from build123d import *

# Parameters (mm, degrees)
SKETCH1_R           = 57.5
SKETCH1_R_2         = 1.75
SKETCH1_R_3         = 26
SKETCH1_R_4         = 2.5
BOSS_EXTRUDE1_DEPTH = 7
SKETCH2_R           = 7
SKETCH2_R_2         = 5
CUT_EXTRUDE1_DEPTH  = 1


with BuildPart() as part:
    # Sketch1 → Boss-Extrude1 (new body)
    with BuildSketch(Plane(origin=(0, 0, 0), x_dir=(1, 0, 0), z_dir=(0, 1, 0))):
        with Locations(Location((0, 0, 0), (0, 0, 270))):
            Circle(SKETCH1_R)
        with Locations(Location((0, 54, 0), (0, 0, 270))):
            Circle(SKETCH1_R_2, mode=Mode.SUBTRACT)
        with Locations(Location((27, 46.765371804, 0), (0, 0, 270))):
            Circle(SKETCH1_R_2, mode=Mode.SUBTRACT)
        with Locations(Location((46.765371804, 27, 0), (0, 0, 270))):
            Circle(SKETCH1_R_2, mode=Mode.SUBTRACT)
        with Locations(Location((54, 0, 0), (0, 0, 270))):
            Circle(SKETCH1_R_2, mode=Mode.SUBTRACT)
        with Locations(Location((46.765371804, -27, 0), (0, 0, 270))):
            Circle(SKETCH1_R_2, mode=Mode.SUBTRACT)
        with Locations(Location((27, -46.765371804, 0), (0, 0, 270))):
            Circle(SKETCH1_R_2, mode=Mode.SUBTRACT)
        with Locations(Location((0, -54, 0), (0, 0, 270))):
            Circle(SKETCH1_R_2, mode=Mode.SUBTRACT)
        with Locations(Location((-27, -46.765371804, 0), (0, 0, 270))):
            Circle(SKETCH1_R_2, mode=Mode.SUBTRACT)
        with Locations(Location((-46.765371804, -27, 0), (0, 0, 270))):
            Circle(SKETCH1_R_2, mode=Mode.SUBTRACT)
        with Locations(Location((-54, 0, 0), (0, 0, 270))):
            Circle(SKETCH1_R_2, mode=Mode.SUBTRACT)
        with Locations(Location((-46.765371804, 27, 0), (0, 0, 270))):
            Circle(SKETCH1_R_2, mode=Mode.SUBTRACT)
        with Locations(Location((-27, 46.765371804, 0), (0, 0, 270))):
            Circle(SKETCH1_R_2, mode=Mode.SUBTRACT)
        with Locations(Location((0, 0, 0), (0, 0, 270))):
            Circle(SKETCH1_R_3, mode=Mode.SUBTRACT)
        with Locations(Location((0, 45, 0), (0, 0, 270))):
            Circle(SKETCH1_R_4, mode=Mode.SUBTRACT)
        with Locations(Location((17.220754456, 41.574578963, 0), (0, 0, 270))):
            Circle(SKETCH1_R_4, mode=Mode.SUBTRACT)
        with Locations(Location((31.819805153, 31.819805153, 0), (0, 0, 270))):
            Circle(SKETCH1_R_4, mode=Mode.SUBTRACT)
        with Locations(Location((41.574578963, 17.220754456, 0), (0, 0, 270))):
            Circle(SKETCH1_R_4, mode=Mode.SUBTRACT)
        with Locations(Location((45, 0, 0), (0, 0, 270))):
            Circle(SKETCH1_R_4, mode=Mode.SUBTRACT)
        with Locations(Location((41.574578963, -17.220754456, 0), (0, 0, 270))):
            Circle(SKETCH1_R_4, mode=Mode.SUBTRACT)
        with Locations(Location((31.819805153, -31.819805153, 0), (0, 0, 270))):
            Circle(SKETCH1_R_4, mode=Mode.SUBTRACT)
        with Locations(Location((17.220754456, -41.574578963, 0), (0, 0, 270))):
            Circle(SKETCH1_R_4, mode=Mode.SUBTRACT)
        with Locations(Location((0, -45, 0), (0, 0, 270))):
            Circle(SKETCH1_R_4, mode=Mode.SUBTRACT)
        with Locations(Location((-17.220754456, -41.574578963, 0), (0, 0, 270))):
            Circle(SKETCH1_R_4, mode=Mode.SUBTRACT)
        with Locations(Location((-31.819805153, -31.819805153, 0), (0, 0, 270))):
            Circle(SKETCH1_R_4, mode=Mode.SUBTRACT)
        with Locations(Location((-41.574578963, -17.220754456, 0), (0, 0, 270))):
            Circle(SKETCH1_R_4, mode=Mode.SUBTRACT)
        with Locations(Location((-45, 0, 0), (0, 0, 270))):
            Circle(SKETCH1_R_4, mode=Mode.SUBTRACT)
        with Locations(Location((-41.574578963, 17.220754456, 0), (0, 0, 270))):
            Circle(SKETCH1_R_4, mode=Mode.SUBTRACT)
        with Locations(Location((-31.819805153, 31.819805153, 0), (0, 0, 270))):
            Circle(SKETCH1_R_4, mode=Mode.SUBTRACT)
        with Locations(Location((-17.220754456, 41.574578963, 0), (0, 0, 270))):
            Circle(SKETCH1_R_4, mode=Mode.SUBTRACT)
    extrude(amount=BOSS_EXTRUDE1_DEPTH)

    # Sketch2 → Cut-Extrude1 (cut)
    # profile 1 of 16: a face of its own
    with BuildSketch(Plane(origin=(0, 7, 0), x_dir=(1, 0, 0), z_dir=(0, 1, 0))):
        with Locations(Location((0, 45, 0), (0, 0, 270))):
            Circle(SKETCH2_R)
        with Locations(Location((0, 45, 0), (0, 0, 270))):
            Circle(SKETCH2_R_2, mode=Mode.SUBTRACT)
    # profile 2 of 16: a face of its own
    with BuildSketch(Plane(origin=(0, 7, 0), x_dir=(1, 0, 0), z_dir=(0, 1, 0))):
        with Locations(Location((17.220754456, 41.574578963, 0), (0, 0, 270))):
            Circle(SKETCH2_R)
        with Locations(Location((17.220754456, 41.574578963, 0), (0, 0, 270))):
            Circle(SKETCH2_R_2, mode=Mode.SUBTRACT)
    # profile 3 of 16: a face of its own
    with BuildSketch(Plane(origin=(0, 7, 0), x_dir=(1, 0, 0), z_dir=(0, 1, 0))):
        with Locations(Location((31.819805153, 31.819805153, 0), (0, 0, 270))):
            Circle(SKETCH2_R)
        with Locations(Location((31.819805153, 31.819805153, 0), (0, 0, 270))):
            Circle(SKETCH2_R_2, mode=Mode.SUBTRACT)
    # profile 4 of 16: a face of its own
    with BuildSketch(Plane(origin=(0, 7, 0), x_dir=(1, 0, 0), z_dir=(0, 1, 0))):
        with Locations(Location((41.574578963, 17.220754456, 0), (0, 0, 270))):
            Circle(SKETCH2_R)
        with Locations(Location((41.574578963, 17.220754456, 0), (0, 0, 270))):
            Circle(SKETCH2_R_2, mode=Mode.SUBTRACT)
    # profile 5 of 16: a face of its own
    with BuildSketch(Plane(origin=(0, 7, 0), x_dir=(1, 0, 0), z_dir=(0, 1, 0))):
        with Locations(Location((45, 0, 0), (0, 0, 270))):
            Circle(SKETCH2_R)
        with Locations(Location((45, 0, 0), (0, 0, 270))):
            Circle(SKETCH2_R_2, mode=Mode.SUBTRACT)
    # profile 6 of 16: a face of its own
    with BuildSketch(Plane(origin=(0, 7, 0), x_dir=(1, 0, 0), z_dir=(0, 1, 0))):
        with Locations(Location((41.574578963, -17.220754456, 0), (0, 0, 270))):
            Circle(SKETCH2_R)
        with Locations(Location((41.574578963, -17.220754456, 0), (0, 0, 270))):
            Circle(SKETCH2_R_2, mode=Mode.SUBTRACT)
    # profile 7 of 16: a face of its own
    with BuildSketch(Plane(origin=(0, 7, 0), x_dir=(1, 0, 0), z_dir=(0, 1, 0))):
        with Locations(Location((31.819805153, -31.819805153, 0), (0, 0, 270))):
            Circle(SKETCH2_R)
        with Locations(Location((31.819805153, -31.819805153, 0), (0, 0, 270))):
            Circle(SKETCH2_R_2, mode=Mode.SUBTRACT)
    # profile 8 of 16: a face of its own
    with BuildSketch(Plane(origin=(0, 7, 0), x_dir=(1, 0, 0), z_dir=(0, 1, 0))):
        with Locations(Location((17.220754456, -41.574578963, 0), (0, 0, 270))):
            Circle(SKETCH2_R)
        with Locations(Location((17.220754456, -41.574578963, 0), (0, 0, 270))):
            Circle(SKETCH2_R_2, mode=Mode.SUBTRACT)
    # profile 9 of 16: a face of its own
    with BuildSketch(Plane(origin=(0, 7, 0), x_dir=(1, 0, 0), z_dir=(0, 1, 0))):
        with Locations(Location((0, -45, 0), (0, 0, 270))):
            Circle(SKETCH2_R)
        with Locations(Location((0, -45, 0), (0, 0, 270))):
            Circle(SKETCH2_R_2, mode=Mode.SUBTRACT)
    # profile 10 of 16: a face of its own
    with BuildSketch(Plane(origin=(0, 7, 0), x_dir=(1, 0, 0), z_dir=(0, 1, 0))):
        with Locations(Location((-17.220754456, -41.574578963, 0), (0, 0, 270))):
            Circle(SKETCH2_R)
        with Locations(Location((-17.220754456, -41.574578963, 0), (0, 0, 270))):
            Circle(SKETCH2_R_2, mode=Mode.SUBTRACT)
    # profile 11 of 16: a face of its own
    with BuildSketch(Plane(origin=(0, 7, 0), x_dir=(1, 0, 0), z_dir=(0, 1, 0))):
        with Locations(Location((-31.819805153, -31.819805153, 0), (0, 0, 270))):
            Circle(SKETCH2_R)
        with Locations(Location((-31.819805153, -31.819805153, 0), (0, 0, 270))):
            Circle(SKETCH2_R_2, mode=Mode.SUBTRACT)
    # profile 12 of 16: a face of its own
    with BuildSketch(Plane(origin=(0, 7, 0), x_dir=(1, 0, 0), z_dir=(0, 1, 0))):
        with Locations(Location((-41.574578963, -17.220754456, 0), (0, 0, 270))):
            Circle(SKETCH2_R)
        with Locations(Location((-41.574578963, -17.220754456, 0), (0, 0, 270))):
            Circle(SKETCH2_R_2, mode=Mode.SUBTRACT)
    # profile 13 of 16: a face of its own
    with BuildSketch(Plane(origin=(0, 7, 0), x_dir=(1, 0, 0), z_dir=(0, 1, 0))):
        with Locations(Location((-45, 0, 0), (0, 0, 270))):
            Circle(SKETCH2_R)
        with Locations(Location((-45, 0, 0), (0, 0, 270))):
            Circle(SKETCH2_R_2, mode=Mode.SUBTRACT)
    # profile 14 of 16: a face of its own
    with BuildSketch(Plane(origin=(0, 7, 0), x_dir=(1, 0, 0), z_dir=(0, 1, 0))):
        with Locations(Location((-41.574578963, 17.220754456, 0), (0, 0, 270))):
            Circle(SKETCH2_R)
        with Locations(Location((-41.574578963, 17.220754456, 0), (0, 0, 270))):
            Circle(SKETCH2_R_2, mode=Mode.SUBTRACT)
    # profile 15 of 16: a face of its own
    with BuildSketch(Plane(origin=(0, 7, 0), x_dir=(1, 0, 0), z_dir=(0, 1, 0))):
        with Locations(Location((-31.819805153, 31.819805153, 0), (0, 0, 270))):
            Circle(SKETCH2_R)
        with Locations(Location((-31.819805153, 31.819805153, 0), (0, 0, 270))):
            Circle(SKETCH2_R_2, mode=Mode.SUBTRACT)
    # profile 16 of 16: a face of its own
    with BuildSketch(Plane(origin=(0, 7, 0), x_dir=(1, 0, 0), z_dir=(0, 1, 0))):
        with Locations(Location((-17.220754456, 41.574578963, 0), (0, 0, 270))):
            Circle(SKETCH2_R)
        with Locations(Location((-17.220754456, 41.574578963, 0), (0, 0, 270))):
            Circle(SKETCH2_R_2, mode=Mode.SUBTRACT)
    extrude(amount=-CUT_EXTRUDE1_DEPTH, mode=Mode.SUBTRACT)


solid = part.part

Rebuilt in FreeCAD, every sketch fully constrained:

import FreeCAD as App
import Part
import Sketcher
from FreeCAD import Vector
Q = App.Units.Quantity

doc = App.newDocument("Part")
body = doc.addObject("PartDesign::Body", "Body")

# Sketch on XZ plane
sketch1 = body.newObject("Sketcher::SketchObject", "Sketch")
sketch1.AttachmentSupport = (doc.getObject("XZ_Plane"), [""])
sketch1.MapMode = "FlatFace"
sketch1.addGeometry([
    Part.Circle(Vector(0, 0, 0), Vector(0, 0, 1), 57.5),  # 0
    Part.Circle(Vector(-31.8, -31.8, 0), Vector(0, 0, 1), 2.5),  # 1
    Part.Circle(Vector(-46.8, -27, 0), Vector(0, 0, 1), 1.8),  # 2
    Part.Circle(Vector(-41.6, -17.2, 0), Vector(0, 0, 1), 2.5),  # 3
    Part.Circle(Vector(-27, -46.8, 0), Vector(0, 0, 1), 1.8),  # 4
    Part.Circle(Vector(-17.2, -41.6, 0), Vector(0, 0, 1), 2.5),  # 5
    Part.Circle(Vector(0, -54, 0), Vector(0, 0, 1), 1.8),  # 6
    Part.Circle(Vector(0, -45, 0), Vector(0, 0, 1), 2.5),  # 7
    Part.Circle(Vector(-54, 0, 0), Vector(0, 0, 1), 1.8),  # 8
    Part.Circle(Vector(-45, 0, 0), Vector(0, 0, 1), 2.5),  # 9
    Part.Circle(Vector(-46.8, 27, 0), Vector(0, 0, 1), 1.8),  # 10
    Part.Circle(Vector(-41.6, 17.2, 0), Vector(0, 0, 1), 2.5),  # 11
    Part.Circle(Vector(-31.8, 31.8, 0), Vector(0, 0, 1), 2.5),  # 12
    Part.Circle(Vector(-17.2, 41.6, 0), Vector(0, 0, 1), 2.5),  # 13
    Part.Circle(Vector(-27, 46.8, 0), Vector(0, 0, 1), 1.8),  # 14
    Part.Circle(Vector(27, -46.8, 0), Vector(0, 0, 1), 1.8),  # 15
    Part.Circle(Vector(17.2, -41.6, 0), Vector(0, 0, 1), 2.5),  # 16
    Part.Circle(Vector(31.8, -31.8, 0), Vector(0, 0, 1), 2.5),  # 17
    Part.Circle(Vector(41.6, -17.2, 0), Vector(0, 0, 1), 2.5),  # 18
    Part.Circle(Vector(46.8, -27, 0), Vector(0, 0, 1), 1.8),  # 19
    Part.Circle(Vector(45, 0, 0), Vector(0, 0, 1), 2.5),  # 20
    Part.Circle(Vector(54, 0, 0), Vector(0, 0, 1), 1.8),  # 21
    Part.Circle(Vector(0, 0, 0), Vector(0, 0, 1), 26),  # 22
    Part.Circle(Vector(0, 45, 0), Vector(0, 0, 1), 2.5),  # 23
    Part.Circle(Vector(0, 54, 0), Vector(0, 0, 1), 1.8),  # 24
    Part.Circle(Vector(17.2, 41.6, 0), Vector(0, 0, 1), 2.5),  # 25
    Part.Circle(Vector(27, 46.8, 0), Vector(0, 0, 1), 1.8),  # 26
    Part.Circle(Vector(41.6, 17.2, 0), Vector(0, 0, 1), 2.5),  # 27
    Part.Circle(Vector(46.8, 27, 0), Vector(0, 0, 1), 1.8),  # 28
    Part.Circle(Vector(31.8, 31.8, 0), Vector(0, 0, 1), 2.5),  # 29
], False)
sketch1.addConstraint([
    Sketcher.Constraint("Coincident", 0, 3, -1, 1),
    Sketcher.Constraint("Coincident", 22, 3, -1, 1),
    Sketcher.Constraint("Equal", 1, 3),
    Sketcher.Constraint("Equal", 2, 4),
    Sketcher.Constraint("Equal", 3, 5),
    Sketcher.Constraint("Equal", 4, 6),
    Sketcher.Constraint("Equal", 5, 7),
    Sketcher.Constraint("Equal", 6, 8),
    Sketcher.Constraint("Equal", 7, 9),
    Sketcher.Constraint("Equal", 8, 10),
    Sketcher.Constraint("Equal", 9, 11),
    Sketcher.Constraint("Equal", 11, 12),
    Sketcher.Constraint("Equal", 12, 13),
    Sketcher.Constraint("Equal", 10, 14),
    Sketcher.Constraint("Equal", 14, 15),
    Sketcher.Constraint("Equal", 13, 16),
    Sketcher.Constraint("Equal", 16, 17),
    Sketcher.Constraint("Equal", 17, 18),
    Sketcher.Constraint("Equal", 15, 19),
    Sketcher.Constraint("Equal", 18, 20),
    Sketcher.Constraint("Equal", 19, 21),
    Sketcher.Constraint("Equal", 20, 23),
    Sketcher.Constraint("Equal", 21, 24),
    Sketcher.Constraint("Equal", 23, 25),
    Sketcher.Constraint("Equal", 24, 26),
    Sketcher.Constraint("Equal", 25, 27),
    Sketcher.Constraint("Equal", 26, 28),
    Sketcher.Constraint("Equal", 27, 29),
    Sketcher.Constraint("Symmetric", 14, 3, 15, 3, -1, 1),
    Sketcher.Constraint("Symmetric", 13, 3, 16, 3, -1, 1),
    Sketcher.Constraint("Symmetric", 12, 3, 17, 3, -1, 1),
    Sketcher.Constraint("Symmetric", 11, 3, 18, 3, -1, 1),
    Sketcher.Constraint("Symmetric", 10, 3, 19, 3, -1, 1),
    Sketcher.Constraint("Symmetric", 9, 3, 20, 3, -1, 1),
    Sketcher.Constraint("Symmetric", 8, 3, 21, 3, -1, 1),
    Sketcher.Constraint("Symmetric", 7, 3, 23, 3, -1, 1),
    Sketcher.Constraint("Symmetric", 6, 3, 24, 3, -1, 1),
    Sketcher.Constraint("Symmetric", 5, 3, 25, 3, -1, 1),
    Sketcher.Constraint("Symmetric", 4, 3, 26, 3, -1, 1),
    Sketcher.Constraint("Symmetric", 3, 3, 27, 3, -1, 1),
    Sketcher.Constraint("Symmetric", 2, 3, 28, 3, -1, 1),
    Sketcher.Constraint("Symmetric", 1, 3, 29, 3, -1, 1),
    Sketcher.Constraint("Symmetric", 4, 3, 15, 3, -2),
    Sketcher.Constraint("Symmetric", 5, 3, 16, 3, -2),
    Sketcher.Constraint("Symmetric", 1, 3, 17, 3, -2),
    Sketcher.Constraint("Symmetric", 3, 3, 18, 3, -2),
    Sketcher.Constraint("Symmetric", 2, 3, 19, 3, -2),
    Sketcher.Constraint("PointOnObject", 6, 3, -2),
    Sketcher.Constraint("PointOnObject", 7, 3, -2),
    Sketcher.Constraint("PointOnObject", 8, 3, -1),
    Sketcher.Constraint("PointOnObject", 9, 3, -1),
    Sketcher.Constraint("Diameter", 0, Q("115 mm")),
    Sketcher.Constraint("Diameter", 1, Q("5 mm")),
    Sketcher.Constraint("Diameter", 22, Q("52 mm")),
    Sketcher.Constraint("Diameter", 2, Q("3.5 mm")),
    Sketcher.Constraint("DistanceY", 2, 3, -1, 1, Q("27 mm")),
    Sketcher.Constraint("DistanceX", 4, 3, -1, 1, Q("27 mm")),
    Sketcher.Constraint("DistanceY", 6, 3, -1, 1, Q("54 mm")),
    Sketcher.Constraint("DistanceY", 7, 3, -1, 1, Q("45 mm")),
    Sketcher.Constraint("DistanceX", 8, 3, -1, 1, Q("54 mm")),
    Sketcher.Constraint("DistanceX", 9, 3, -1, 1, Q("45 mm")),
    Sketcher.Constraint("DistanceX", 2, 3, -1, 1, Q("46.765372 mm")),
    Sketcher.Constraint("DistanceX", 3, 3, -1, 1, Q("41.574579 mm")),
    Sketcher.Constraint("DistanceY", 4, 3, -1, 1, Q("46.765372 mm")),
    Sketcher.Constraint("DistanceY", 5, 3, -1, 1, Q("41.574579 mm")),
    Sketcher.Constraint("DistanceY", 1, 3, 3, 3, Q("14.599051 mm")),
    Sketcher.Constraint("DistanceX", 1, 3, 5, 3, Q("14.599051 mm")),
    Sketcher.Constraint("DistanceY", 3, 3, 11, 3, Q("34.441509 mm")),
    Sketcher.Constraint("DistanceX", 5, 3, 16, 3, Q("34.441509 mm")),
])
pad1 = body.newObject("PartDesign::Pad", "Pad")
pad1.Profile = sketch1
pad1.Length = 7
pad1.Reversed = True

# Sketch on XZ plane
sketch2 = body.newObject("Sketcher::SketchObject", "Sketch001")
sketch2.AttachmentSupport = (doc.getObject("XZ_Plane"), [""])
sketch2.MapMode = "FlatFace"
sketch2.AttachmentOffset = App.Placement(Vector(0, 0, -7), App.Rotation())
sketch2.addGeometry([
    Part.Circle(Vector(0, -45, 0), Vector(0, 0, 1), 7),  # 0
    Part.Circle(Vector(0, -45, 0), Vector(0, 0, 1), 5),  # 1
    Part.Circle(Vector(17, -42, 0), Vector(0, 0, 1), 7),  # 2
    Part.Circle(Vector(17, -42, 0), Vector(0, 0, 1), 5),  # 3
    Part.Circle(Vector(32, -32, 0), Vector(0, 0, 1), 7),  # 4
    Part.Circle(Vector(32, -32, 0), Vector(0, 0, 1), 5),  # 5
    Part.Circle(Vector(42, -17, 0), Vector(0, 0, 1), 7),  # 6
    Part.Circle(Vector(42, -17, 0), Vector(0, 0, 1), 5),  # 7
    Part.Circle(Vector(45, 0, 0), Vector(0, 0, 1), 7),  # 8
    Part.Circle(Vector(45, 0, 0), Vector(0, 0, 1), 5),  # 9
    Part.Circle(Vector(42, 17, 0), Vector(0, 0, 1), 7),  # 10
    Part.Circle(Vector(42, 17, 0), Vector(0, 0, 1), 5),  # 11
    Part.Circle(Vector(32, 32, 0), Vector(0, 0, 1), 7),  # 12
    Part.Circle(Vector(32, 32, 0), Vector(0, 0, 1), 5),  # 13
    Part.Circle(Vector(17, 42, 0), Vector(0, 0, 1), 7),  # 14
    Part.Circle(Vector(17, 42, 0), Vector(0, 0, 1), 5),  # 15
    Part.Circle(Vector(0, 45, 0), Vector(0, 0, 1), 7),  # 16
    Part.Circle(Vector(0, 45, 0), Vector(0, 0, 1), 5),  # 17
    Part.Circle(Vector(-17, 42, 0), Vector(0, 0, 1), 7),  # 18
    Part.Circle(Vector(-17, 42, 0), Vector(0, 0, 1), 5),  # 19
    Part.Circle(Vector(-32, 32, 0), Vector(0, 0, 1), 7),  # 20
    Part.Circle(Vector(-32, 32, 0), Vector(0, 0, 1), 5),  # 21
    Part.Circle(Vector(-42, 17, 0), Vector(0, 0, 1), 7),  # 22
    Part.Circle(Vector(-42, 17, 0), Vector(0, 0, 1), 5),  # 23
    Part.Circle(Vector(-45, 0, 0), Vector(0, 0, 1), 7),  # 24
    Part.Circle(Vector(-45, 0, 0), Vector(0, 0, 1), 5),  # 25
    Part.Circle(Vector(-42, -17, 0), Vector(0, 0, 1), 7),  # 26
    Part.Circle(Vector(-42, -17, 0), Vector(0, 0, 1), 5),  # 27
    Part.Circle(Vector(-32, -32, 0), Vector(0, 0, 1), 7),  # 28
    Part.Circle(Vector(-32, -32, 0), Vector(0, 0, 1), 5),  # 29
    Part.Circle(Vector(-17, -42, 0), Vector(0, 0, 1), 7),  # 30
    Part.Circle(Vector(-17, -42, 0), Vector(0, 0, 1), 5),  # 31
], False)
sketch2.addConstraint([
    Sketcher.Constraint("Coincident", 1, 3, 0, 3),
    Sketcher.Constraint("Coincident", 3, 3, 2, 3),
    Sketcher.Constraint("Coincident", 5, 3, 4, 3),
    Sketcher.Constraint("Coincident", 7, 3, 6, 3),
    Sketcher.Constraint("Coincident", 9, 3, 8, 3),
    Sketcher.Constraint("Coincident", 11, 3, 10, 3),
    Sketcher.Constraint("Coincident", 13, 3, 12, 3),
    Sketcher.Constraint("Coincident", 15, 3, 14, 3),
    Sketcher.Constraint("Coincident", 17, 3, 16, 3),
    Sketcher.Constraint("Coincident", 19, 3, 18, 3),
    Sketcher.Constraint("Coincident", 21, 3, 20, 3),
    Sketcher.Constraint("Coincident", 23, 3, 22, 3),
    Sketcher.Constraint("Coincident", 25, 3, 24, 3),
    Sketcher.Constraint("Coincident", 27, 3, 26, 3),
    Sketcher.Constraint("Coincident", 29, 3, 28, 3),
    Sketcher.Constraint("Coincident", 31, 3, 30, 3),
    Sketcher.Constraint("Equal", 0, 2),
    Sketcher.Constraint("Equal", 1, 3),
    Sketcher.Constraint("Equal", 2, 4),
    Sketcher.Constraint("Equal", 3, 5),
    Sketcher.Constraint("Equal", 4, 6),
    Sketcher.Constraint("Equal", 5, 7),
    Sketcher.Constraint("Equal", 6, 8),
    Sketcher.Constraint("Equal", 7, 9),
    Sketcher.Constraint("Equal", 8, 10),
    Sketcher.Constraint("Equal", 9, 11),
    Sketcher.Constraint("Equal", 10, 12),
    Sketcher.Constraint("Equal", 11, 13),
    Sketcher.Constraint("Equal", 12, 14),
    Sketcher.Constraint("Equal", 13, 15),
    Sketcher.Constraint("Equal", 14, 16),
    Sketcher.Constraint("Equal", 15, 17),
    Sketcher.Constraint("Equal", 16, 18),
    Sketcher.Constraint("Equal", 17, 19),
    Sketcher.Constraint("Equal", 18, 20),
    Sketcher.Constraint("Equal", 19, 21),
    Sketcher.Constraint("Equal", 20, 22),
    Sketcher.Constraint("Equal", 21, 23),
    Sketcher.Constraint("Equal", 22, 24),
    Sketcher.Constraint("Equal", 23, 25),
    Sketcher.Constraint("Equal", 24, 26),
    Sketcher.Constraint("Equal", 25, 27),
    Sketcher.Constraint("Equal", 26, 28),
    Sketcher.Constraint("Equal", 27, 29),
    Sketcher.Constraint("Equal", 28, 30),
    Sketcher.Constraint("Equal", 29, 31),
    Sketcher.Constraint("Symmetric", 0, 3, 16, 3, -1, 1),
    Sketcher.Constraint("Symmetric", 2, 3, 18, 3, -1, 1),
    Sketcher.Constraint("Symmetric", 4, 3, 20, 3, -1, 1),
    Sketcher.Constraint("Symmetric", 6, 3, 22, 3, -1, 1),
    Sketcher.Constraint("Symmetric", 8, 3, 24, 3, -1, 1),
    Sketcher.Constraint("Symmetric", 10, 3, 26, 3, -1, 1),
    Sketcher.Constraint("Symmetric", 12, 3, 28, 3, -1, 1),
    Sketcher.Constraint("Symmetric", 14, 3, 30, 3, -1, 1),
    Sketcher.Constraint("Symmetric", 14, 3, 18, 3, -2),
    Sketcher.Constraint("Symmetric", 12, 3, 20, 3, -2),
    Sketcher.Constraint("Symmetric", 10, 3, 22, 3, -2),
    Sketcher.Constraint("PointOnObject", 0, 3, -2),
    Sketcher.Constraint("PointOnObject", 8, 3, -1),
    Sketcher.Constraint("Diameter", 0, Q("14 mm")),
    Sketcher.Constraint("Diameter", 1, Q("10 mm")),
    Sketcher.Constraint("DistanceY", 0, 3, -1, 1, Q("45 mm")),
    Sketcher.Constraint("DistanceX", -1, 1, 8, 3, Q("45 mm")),
    Sketcher.Constraint("DistanceY", 2, 3, -1, 1, Q("41.574579 mm")),
    Sketcher.Constraint("DistanceX", -1, 1, 6, 3, Q("41.574579 mm")),
    Sketcher.Constraint("DistanceX", 2, 3, 4, 3, Q("14.599051 mm")),
    Sketcher.Constraint("DistanceY", 4, 3, 6, 3, Q("14.599051 mm")),
    Sketcher.Constraint("DistanceY", 6, 3, 10, 3, Q("34.441509 mm")),
    Sketcher.Constraint("DistanceX", 18, 3, 14, 3, Q("34.441509 mm")),
])
pocket1 = body.newObject("PartDesign::Pocket", "Pocket")
pocket1.Profile = sketch2
pocket1.Length = 1
pocket1.Reversed = True

doc.recompute()
